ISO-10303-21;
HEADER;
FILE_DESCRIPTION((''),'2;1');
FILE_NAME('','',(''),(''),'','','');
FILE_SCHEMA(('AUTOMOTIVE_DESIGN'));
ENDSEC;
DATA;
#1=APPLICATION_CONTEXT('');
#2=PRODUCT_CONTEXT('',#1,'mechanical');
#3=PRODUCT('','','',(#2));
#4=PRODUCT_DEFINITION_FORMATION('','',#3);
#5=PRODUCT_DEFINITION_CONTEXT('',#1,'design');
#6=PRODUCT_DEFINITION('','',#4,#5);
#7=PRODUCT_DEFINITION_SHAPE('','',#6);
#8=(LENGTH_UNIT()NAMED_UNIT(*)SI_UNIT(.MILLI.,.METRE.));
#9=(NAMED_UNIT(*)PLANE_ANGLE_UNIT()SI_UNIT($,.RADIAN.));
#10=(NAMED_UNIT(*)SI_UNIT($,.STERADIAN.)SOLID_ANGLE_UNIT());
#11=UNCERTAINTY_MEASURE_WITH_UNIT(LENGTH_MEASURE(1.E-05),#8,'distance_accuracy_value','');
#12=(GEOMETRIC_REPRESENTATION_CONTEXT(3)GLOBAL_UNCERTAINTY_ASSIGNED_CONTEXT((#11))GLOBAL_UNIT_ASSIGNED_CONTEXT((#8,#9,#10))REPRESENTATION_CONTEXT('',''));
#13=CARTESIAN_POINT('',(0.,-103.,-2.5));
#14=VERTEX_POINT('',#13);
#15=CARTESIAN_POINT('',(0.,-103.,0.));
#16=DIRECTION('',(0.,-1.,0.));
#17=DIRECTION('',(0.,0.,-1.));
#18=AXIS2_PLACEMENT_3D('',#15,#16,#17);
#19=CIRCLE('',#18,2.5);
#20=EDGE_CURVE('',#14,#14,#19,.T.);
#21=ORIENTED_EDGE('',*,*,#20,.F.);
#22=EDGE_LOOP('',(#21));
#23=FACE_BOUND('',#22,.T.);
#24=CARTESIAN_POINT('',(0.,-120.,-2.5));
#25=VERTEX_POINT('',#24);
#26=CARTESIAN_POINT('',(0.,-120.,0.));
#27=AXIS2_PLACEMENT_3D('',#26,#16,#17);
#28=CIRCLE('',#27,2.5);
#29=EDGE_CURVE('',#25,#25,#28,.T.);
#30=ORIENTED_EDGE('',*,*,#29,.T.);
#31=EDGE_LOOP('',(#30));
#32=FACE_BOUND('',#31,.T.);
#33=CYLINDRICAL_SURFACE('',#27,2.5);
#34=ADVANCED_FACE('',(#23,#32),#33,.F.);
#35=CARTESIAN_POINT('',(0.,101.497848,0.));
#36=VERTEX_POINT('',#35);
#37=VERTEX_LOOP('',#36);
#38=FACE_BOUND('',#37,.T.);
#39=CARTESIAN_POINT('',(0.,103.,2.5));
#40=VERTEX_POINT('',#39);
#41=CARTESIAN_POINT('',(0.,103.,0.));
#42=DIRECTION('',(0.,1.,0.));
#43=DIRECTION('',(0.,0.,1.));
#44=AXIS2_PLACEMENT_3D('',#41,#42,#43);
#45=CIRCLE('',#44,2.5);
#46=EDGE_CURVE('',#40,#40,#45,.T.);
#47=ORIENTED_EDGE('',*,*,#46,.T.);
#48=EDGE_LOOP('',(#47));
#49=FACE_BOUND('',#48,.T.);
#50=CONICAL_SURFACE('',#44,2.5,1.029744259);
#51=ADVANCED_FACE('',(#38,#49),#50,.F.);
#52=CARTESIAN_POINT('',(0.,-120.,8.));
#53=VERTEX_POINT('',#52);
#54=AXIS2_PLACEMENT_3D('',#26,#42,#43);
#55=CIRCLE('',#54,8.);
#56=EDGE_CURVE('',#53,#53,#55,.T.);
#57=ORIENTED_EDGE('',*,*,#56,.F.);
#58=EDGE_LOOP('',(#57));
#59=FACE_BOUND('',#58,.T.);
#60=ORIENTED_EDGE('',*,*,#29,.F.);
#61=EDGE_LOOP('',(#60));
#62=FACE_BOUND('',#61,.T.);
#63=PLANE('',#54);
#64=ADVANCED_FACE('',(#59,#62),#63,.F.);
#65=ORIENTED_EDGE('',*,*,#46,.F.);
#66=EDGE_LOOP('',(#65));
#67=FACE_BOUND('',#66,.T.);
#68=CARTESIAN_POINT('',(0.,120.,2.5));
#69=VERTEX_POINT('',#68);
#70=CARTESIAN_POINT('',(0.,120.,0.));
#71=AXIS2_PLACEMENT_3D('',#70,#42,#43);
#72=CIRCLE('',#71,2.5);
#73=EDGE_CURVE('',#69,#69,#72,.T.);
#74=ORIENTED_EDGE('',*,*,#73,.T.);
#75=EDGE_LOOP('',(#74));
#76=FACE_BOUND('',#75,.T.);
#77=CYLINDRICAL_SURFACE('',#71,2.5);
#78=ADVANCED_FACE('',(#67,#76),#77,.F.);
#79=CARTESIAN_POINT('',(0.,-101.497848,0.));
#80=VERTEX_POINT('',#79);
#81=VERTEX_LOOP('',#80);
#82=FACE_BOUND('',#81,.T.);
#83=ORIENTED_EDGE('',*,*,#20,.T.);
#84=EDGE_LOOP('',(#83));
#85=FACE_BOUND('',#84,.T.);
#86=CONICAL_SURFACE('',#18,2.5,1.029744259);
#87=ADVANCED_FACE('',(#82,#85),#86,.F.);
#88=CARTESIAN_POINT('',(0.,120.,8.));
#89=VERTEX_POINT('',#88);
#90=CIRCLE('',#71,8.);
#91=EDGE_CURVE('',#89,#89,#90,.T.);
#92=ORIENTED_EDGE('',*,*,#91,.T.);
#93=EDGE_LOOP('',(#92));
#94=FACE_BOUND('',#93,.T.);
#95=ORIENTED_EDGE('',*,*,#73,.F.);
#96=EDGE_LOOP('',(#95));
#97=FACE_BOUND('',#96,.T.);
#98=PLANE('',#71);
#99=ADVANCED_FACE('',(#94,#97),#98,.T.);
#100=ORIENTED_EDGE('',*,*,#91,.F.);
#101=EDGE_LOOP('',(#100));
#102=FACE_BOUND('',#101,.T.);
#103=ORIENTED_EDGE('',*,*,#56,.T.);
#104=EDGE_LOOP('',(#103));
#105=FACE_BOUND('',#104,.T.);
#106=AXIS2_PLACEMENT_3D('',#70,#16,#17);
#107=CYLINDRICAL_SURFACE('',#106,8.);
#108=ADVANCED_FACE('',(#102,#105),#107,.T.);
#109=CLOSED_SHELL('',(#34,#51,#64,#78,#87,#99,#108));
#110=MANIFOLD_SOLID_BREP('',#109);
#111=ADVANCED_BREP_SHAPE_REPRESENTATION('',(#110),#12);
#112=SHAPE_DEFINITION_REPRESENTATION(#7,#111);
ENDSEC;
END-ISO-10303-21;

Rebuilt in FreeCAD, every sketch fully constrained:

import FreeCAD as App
import Part
import Sketcher
Q = App.Units.Quantity

doc = App.newDocument("Part")
body = doc.addObject("PartDesign::Body", "Body")

sketch1 = body.newObject("Sketcher::SketchObject", "Sketch")
sketch1.AttachmentSupport = (doc.getObject("XZ_Plane"), [""])
sketch1.MapMode = "FlatFace"
sketch1.addGeometry(Part.Circle(App.Vector(0, 0, 0), App.Vector(0, 0, 1), 8), False)
sketch1.addConstraint([
    Sketcher.Constraint("Coincident", 0, 3, -1, 1),
    Sketcher.Constraint("Diameter", 0, 16.0),
])
pad1 = body.newObject("PartDesign::Pad", "Pad")
pad1.Profile = sketch1
pad1.Length = 240
pad1.Midplane = True

sketch2 = body.newObject("Sketcher::SketchObject", "Sketch001")
sketch2.AttachmentSupport = (doc.getObject("YZ_Plane"), [""])
sketch2.MapMode = "FlatFace"
sketch2.addGeometry([
    Part.LineSegment(App.Vector(101.5, 0, 0), App.Vector(120, 0, 0)),
    Part.LineSegment(App.Vector(120, 0, 0), App.Vector(120, 2.5, 0)),
    Part.LineSegment(App.Vector(120, 2.5, 0), App.Vector(103, 2.5, 0)),
    Part.LineSegment(App.Vector(103, 2.5, 0), App.Vector(101.5, 0, 0)),
], False)
sketch2.addConstraint([
    Sketcher.Constraint("Coincident", 0, 2, 1, 1),
    Sketcher.Constraint("Coincident", 1, 2, 2, 1),
    Sketcher.Constraint("Coincident", 2, 2, 3, 1),
    Sketcher.Constraint("Coincident", 3, 2, 0, 1),
    Sketcher.Constraint("Horizontal", 0),
    Sketcher.Constraint("Vertical", 1),
    Sketcher.Constraint("Horizontal", 2),
    Sketcher.Constraint("PointOnObject", 0, 2, -1),
    Sketcher.Constraint("DistanceX", 2, 2, 2, 1, 17.0),
    Sketcher.Constraint("Angle", 3, Q("-121 deg")),
    Sketcher.Constraint("DistanceY", 1, 1, 1, 2, 2.5),
    Sketcher.Constraint("DistanceX", -1, 1, 0, 2, 120.0),
])
groove = body.newObject("PartDesign::Groove", "Groove")
groove.Profile = sketch2
groove.ReferenceAxis = (sketch2, ["H_Axis"])
groove.Angle = 360
doc.recompute()

mirrored = body.newObject("PartDesign::Mirrored", "Mirrored")
mirrored.Originals = [groove]
mirrored.MirrorPlane = (doc.getObject("XZ_Plane"), [""])
body.Tip = mirrored

doc.recompute()
